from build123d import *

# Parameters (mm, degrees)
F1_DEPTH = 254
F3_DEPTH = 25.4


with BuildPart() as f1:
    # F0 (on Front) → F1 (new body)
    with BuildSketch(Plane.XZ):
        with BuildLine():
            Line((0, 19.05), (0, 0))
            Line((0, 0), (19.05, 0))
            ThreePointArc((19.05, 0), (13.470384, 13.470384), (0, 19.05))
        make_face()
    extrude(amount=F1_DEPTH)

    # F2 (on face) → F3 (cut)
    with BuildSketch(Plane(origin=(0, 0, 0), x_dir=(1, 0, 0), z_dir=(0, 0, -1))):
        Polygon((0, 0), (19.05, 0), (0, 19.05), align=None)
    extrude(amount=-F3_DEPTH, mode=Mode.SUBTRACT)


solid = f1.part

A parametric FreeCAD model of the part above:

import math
import FreeCAD as App
import Part
import Sketcher

V = App.Vector
Q = App.Units.Quantity


def add_polygon(sketch, points):
    """Adds a closed chain of lines whose ends are joined by coincident constraints."""
    first, n = sketch.GeometryCount, len(points)
    for a, b in zip(points, points[1:] + points[:1]):
        sketch.addGeometry(Part.LineSegment(App.Vector(*a, 0), App.Vector(*b, 0)), False)
    for i in range(n):
        sketch.addConstraint(Sketcher.Constraint("Coincident", first + i, 2, first + (i + 1) % n, 1))

doc = App.newDocument("Part")
body = doc.addObject("PartDesign::Body", "Body")

sketch1 = doc.addObject("Sketcher::SketchObject", "Sketch")
body.addObject(sketch1)
sketch1.AttachmentSupport = (doc.XZ_Plane, [""])
sketch1.MapMode = "FlatFace"
sketch1.addGeometry(Part.LineSegment(V(0, 19, 0), V(0, 0, 0)), False)
sketch1.addGeometry(Part.LineSegment(V(0, 0, 0), V(19, 0, 0)), False)
sketch1.addGeometry(Part.ArcOfCircle(Part.Circle(V(0, 0, 0), V(0, 0, 1), 19), math.radians(0), math.radians(90)), False)
sketch1.addConstraint(Sketcher.Constraint("Coincident", 0, 2, 1, 1))
sketch1.addConstraint(Sketcher.Constraint("Coincident", 1, 2, 2, 1))
sketch1.addConstraint(Sketcher.Constraint("Coincident", 2, 2, 0, 1))
sketch1.addConstraint(Sketcher.Constraint("Vertical", 0))
sketch1.addConstraint(Sketcher.Constraint("Horizontal", 1))
sketch1.addConstraint(Sketcher.Constraint("Coincident", 2, 3, -1, 1))
sketch1.addConstraint(Sketcher.Constraint("Coincident", 0, 2, -1, 1))
sketch1.addConstraint(Sketcher.Constraint("Radius", 2, Q("0.75 in")))
pad1 = doc.addObject("PartDesign::Pad", "Pad")
body.addObject(pad1)
pad1.Profile = sketch1
pad1.Length = Q("10 in")

sketch2 = doc.addObject("Sketcher::SketchObject", "Sketch001")
body.addObject(sketch2)
sketch2.AttachmentSupport = (doc.XY_Plane, [""])
sketch2.MapMode = "FlatFace"
add_polygon(sketch2, [(0, 0), (19, 0), (0, -19)])
sketch2.addConstraint(Sketcher.Constraint("Horizontal", 0))
sketch2.addConstraint(Sketcher.Constraint("Vertical", 2))
sketch2.addConstraint(Sketcher.Constraint("Coincident", 2, 2, -1, 1))
sketch2.addConstraint(Sketcher.Constraint("Equal", 0, 2))
sketch2.addConstraint(Sketcher.Constraint("DistanceX", 0, 1, 0, 2, Q("0.75 in")))
pocket1 = doc.addObject("PartDesign::Pocket", "Pocket")
body.addObject(pocket1)
pocket1.Profile = sketch2
pocket1.Length = Q("1 in")
pocket1.Reversed = True

doc.recompute()
